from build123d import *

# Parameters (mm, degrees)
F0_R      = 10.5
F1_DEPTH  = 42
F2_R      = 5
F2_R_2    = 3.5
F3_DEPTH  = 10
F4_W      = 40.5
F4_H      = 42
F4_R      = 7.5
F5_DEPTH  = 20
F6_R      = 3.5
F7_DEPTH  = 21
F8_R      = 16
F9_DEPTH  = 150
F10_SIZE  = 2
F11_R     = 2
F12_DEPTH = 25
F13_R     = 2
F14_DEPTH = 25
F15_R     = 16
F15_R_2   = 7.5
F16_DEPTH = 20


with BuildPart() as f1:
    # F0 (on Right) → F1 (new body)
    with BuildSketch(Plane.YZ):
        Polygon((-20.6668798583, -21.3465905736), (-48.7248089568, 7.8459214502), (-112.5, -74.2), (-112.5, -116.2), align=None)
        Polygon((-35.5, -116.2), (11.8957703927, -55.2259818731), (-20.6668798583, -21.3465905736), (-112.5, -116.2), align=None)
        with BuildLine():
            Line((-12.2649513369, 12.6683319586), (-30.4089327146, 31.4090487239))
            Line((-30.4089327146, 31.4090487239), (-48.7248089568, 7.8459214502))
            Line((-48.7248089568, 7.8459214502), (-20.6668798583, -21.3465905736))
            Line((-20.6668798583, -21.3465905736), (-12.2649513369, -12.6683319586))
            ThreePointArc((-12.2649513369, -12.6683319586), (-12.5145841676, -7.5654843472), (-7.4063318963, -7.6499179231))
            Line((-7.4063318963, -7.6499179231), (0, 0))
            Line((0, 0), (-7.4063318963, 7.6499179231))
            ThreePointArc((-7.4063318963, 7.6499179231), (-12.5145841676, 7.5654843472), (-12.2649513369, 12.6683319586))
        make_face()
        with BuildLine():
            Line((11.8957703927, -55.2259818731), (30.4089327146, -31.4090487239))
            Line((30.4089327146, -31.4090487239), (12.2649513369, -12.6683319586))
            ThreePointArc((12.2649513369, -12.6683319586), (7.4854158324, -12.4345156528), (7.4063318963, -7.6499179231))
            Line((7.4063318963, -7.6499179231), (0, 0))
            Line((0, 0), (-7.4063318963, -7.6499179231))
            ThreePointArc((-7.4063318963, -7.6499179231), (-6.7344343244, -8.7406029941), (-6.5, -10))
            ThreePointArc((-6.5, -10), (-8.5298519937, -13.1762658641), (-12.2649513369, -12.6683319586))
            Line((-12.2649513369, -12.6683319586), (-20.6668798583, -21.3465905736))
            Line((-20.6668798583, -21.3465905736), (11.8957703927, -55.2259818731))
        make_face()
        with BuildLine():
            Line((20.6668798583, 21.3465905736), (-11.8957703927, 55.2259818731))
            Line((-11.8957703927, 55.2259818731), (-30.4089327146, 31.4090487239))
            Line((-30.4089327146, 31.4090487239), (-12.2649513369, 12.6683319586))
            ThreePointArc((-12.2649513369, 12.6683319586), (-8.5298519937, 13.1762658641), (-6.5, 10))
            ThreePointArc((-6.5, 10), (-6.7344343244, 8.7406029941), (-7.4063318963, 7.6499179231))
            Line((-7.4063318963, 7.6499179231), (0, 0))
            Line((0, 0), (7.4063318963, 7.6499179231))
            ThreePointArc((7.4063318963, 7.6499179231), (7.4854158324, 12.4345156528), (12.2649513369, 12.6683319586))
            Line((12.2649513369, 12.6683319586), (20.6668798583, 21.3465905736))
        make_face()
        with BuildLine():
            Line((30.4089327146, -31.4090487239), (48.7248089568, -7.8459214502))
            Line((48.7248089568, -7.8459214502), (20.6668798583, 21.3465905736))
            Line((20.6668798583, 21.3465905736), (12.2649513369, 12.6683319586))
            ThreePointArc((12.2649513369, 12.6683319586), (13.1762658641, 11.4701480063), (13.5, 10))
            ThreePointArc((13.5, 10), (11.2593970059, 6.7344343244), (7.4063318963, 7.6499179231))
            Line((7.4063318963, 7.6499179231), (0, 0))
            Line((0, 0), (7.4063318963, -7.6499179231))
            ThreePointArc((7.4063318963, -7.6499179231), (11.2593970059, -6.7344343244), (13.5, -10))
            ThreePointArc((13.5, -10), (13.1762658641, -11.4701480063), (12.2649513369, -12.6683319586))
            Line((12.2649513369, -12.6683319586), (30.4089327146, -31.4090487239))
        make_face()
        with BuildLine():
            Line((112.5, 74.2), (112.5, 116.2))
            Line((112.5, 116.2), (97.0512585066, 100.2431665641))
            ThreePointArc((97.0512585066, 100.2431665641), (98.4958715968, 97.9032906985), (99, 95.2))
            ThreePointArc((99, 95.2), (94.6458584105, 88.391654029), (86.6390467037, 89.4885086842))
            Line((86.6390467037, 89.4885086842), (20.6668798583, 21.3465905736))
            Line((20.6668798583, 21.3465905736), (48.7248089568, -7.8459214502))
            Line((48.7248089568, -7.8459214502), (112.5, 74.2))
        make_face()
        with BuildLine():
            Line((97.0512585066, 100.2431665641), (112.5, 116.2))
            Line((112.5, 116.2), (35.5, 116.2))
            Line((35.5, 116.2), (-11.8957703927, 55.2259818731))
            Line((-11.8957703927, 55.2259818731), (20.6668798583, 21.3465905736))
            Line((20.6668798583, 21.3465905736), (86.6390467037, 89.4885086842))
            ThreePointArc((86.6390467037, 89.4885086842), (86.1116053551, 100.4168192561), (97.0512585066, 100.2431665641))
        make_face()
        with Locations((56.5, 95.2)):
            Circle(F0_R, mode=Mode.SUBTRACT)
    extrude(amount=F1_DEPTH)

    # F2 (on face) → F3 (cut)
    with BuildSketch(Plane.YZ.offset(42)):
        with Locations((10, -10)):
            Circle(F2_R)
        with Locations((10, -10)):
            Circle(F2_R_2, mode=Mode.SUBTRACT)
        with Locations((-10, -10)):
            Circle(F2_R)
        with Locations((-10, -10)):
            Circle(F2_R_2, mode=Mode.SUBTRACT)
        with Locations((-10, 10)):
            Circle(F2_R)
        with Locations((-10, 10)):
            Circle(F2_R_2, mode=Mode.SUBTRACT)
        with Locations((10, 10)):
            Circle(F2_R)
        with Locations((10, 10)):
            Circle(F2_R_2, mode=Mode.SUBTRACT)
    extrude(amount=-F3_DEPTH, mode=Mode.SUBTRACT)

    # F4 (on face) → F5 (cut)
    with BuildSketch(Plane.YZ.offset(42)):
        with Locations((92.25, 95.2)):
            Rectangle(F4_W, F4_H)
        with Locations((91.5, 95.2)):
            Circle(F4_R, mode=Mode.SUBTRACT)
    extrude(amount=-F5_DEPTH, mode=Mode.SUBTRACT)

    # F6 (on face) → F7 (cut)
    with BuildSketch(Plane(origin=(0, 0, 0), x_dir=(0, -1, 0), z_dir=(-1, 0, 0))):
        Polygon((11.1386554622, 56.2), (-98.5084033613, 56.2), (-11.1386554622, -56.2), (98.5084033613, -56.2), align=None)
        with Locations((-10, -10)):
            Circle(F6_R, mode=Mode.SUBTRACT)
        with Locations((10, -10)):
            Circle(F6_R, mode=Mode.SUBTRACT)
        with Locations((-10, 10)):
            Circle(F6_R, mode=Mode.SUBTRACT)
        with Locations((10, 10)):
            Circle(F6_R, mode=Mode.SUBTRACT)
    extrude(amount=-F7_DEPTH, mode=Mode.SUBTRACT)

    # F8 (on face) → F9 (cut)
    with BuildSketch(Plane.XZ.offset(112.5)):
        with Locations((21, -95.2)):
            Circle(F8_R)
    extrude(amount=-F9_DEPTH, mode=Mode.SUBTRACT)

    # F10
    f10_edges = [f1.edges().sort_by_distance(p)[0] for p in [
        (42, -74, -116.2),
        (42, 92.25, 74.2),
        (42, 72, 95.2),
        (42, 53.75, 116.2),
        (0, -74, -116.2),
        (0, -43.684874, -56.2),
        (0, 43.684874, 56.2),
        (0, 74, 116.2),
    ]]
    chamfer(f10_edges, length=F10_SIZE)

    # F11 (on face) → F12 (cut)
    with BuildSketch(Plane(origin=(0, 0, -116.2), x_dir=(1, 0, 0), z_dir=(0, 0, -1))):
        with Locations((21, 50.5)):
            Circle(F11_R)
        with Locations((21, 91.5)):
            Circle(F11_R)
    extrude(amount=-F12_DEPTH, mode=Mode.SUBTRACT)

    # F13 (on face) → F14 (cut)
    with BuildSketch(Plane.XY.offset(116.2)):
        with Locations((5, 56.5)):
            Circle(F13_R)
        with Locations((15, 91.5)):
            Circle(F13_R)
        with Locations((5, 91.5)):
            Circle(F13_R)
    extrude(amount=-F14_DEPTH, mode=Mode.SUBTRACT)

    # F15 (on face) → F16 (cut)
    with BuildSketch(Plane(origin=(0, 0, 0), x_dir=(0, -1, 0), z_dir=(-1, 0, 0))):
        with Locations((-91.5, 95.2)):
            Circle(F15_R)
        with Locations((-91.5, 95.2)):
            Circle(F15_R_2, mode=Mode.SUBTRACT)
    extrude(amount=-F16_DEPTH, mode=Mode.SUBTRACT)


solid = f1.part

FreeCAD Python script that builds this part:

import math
import FreeCAD as App
import Part
import Sketcher


def edges_at(feature, points):
    """Names of the edges that pass closest to the given points."""
    edges = feature.Shape.Edges
    near = lambda p: min(range(len(edges)), key=lambda i: edges[i].distToShape(Part.Vertex(*p))[0])
    return sorted({f"Edge{near(p) + 1}" for p in points})

doc = App.newDocument("Part")
body = doc.addObject("PartDesign::Body", "Body")

# Sketch on YZ plane
sketch1 = body.newObject("Sketcher::SketchObject", "Sketch")
sketch1.AttachmentSupport = (doc.getObject("YZ_Plane"), [""])
sketch1.MapMode = "FlatFace"
sketch1.addGeometry([
    Part.LineSegment(App.Vector(-48.7, 7.8, 0), App.Vector(-112.5, -74.2, 0)),  # 0
    Part.LineSegment(App.Vector(-112.5, -74.2, 0), App.Vector(-112.5, -116.2, 0)),  # 1
    Part.LineSegment(App.Vector(-112.5, -116.2, 0), App.Vector(-35.5, -116.2, 0)),  # 2
    Part.LineSegment(App.Vector(-35.5, -116.2, 0), App.Vector(11.9, -55.2, 0)),  # 3
    Part.LineSegment(App.Vector(11.9, -55.2, 0), App.Vector(48.7, -7.8, 0)),  # 4
    Part.LineSegment(App.Vector(48.7, -7.8, 0), App.Vector(112.5, 74.2, 0)),  # 5
    Part.LineSegment(App.Vector(112.5, 74.2, 0), App.Vector(112.5, 116.2, 0)),  # 6
    Part.LineSegment(App.Vector(112.5, 116.2, 0), App.Vector(35.5, 116.2, 0)),  # 7
    Part.LineSegment(App.Vector(35.5, 116.2, 0), App.Vector(-11.9, 55.2, 0)),  # 8
    Part.LineSegment(App.Vector(-11.9, 55.2, 0), App.Vector(-48.7, 7.8, 0)),  # 9
    Part.ArcOfCircle(Part.Circle(App.Vector(-10, -10, 0), App.Vector(0, 0, 1), 3.5), math.radians(42), math.radians(230)),  # 10
    Part.ArcOfCircle(Part.Circle(App.Vector(-10, -10, 0), App.Vector(0, 0, 1), 3.5), math.radians(0), math.radians(42)),  # 11
    Part.ArcOfCircle(Part.Circle(App.Vector(-10, -10, 0), App.Vector(0, 0, 1), 3.5), math.radians(-130), math.radians(0)),  # 12
    Part.ArcOfCircle(Part.Circle(App.Vector(10, -10, 0), App.Vector(0, 0, 1), 3.5), math.radians(138), math.radians(310)),  # 13
    Part.ArcOfCircle(Part.Circle(App.Vector(10, -10, 0), App.Vector(0, 0, 1), 3.5), math.radians(0), math.radians(138)),  # 14
    Part.ArcOfCircle(Part.Circle(App.Vector(10, -10, 0), App.Vector(0, 0, 1), 3.5), math.radians(-50), math.radians(0)),  # 15
    Part.ArcOfCircle(Part.Circle(App.Vector(-10, 10, 0), App.Vector(0, 0, 1), 3.5), math.radians(130), math.radians(318)),  # 16
    Part.ArcOfCircle(Part.Circle(App.Vector(-10, 10, 0), App.Vector(0, 0, 1), 3.5), math.radians(0), math.radians(130)),  # 17
    Part.ArcOfCircle(Part.Circle(App.Vector(-10, 10, 0), App.Vector(0, 0, 1), 3.5), math.radians(-42), math.radians(0)),  # 18
    Part.ArcOfCircle(Part.Circle(App.Vector(10, 10, 0), App.Vector(0, 0, 1), 3.5), math.radians(50), math.radians(222)),  # 19
    Part.ArcOfCircle(Part.Circle(App.Vector(10, 10, 0), App.Vector(0, 0, 1), 3.5), math.radians(0), math.radians(50)),  # 20
    Part.ArcOfCircle(Part.Circle(App.Vector(10, 10, 0), App.Vector(0, 0, 1), 3.5), math.radians(-138), math.radians(0)),  # 21
    Part.Circle(App.Vector(56.5, 95.2, 0), App.Vector(0, 0, 1), 10.5),  # 22
    Part.ArcOfCircle(Part.Circle(App.Vector(91.5, 95.2, 0), App.Vector(0, 0, 1), 7.5), math.radians(0), math.radians(42)),  # 23
    Part.ArcOfCircle(Part.Circle(App.Vector(91.5, 95.2, 0), App.Vector(0, 0, 1), 7.5), math.radians(-130), math.radians(0)),  # 24
    Part.ArcOfCircle(Part.Circle(App.Vector(91.5, 95.2, 0), App.Vector(0, 0, 1), 7.5), math.radians(42), math.radians(230)),  # 25
], False)
sketch1.addConstraint([
    Sketcher.Constraint("Coincident", 0, 2, 1, 1),
    Sketcher.Constraint("Coincident", 1, 2, 2, 1),
    Sketcher.Constraint("Coincident", 2, 2, 3, 1),
    Sketcher.Constraint("Coincident", 3, 2, 4, 1),
    Sketcher.Constraint("Coincident", 4, 2, 5, 1),
    Sketcher.Constraint("Coincident", 5, 2, 6, 1),
    Sketcher.Constraint("Coincident", 6, 2, 7, 1),
    Sketcher.Constraint("Coincident", 7, 2, 8, 1),
    Sketcher.Constraint("Coincident", 8, 2, 9, 1),
    Sketcher.Constraint("Coincident", 9, 2, 0, 1),
    Sketcher.Constraint("Tangent", 10, 1, 11, 2),
    Sketcher.Constraint("Tangent", 11, 1, 12, 2),
    Sketcher.Constraint("Tangent", 12, 1, 10, 2),
    Sketcher.Constraint("Tangent", 13, 1, 14, 2),
    Sketcher.Constraint("Tangent", 14, 1, 15, 2),
    Sketcher.Constraint("Tangent", 15, 1, 13, 2),
    Sketcher.Constraint("Tangent", 16, 1, 17, 2),
    Sketcher.Constraint("Tangent", 17, 1, 18, 2),
    Sketcher.Constraint("Tangent", 18, 1, 16, 2),
    Sketcher.Constraint("Tangent", 19, 1, 20, 2),
    Sketcher.Constraint("Tangent", 20, 1, 21, 2),
    Sketcher.Constraint("Tangent", 21, 1, 19, 2),
    Sketcher.Constraint("Tangent", 23, 1, 24, 2),
    Sketcher.Constraint("Tangent", 24, 1, 25, 2),
    Sketcher.Constraint("Tangent", 25, 1, 23, 2),
    Sketcher.Constraint("Vertical", 1),
    Sketcher.Constraint("Horizontal", 2),
    Sketcher.Constraint("Vertical", 6),
    Sketcher.Constraint("Horizontal", 7),
    Sketcher.Constraint("Equal", 12, 13),
    Sketcher.Constraint("Equal", 15, 16),
    Sketcher.Constraint("Equal", 18, 19),
    Sketcher.Constraint("Symmetric", 13, 3, 16, 3, -1, 1),
    Sketcher.Constraint("Symmetric", 10, 3, 19, 3, -1, 1),
    Sketcher.Constraint("Symmetric", 0, 2, 5, 2, -1, 1),
    Sketcher.Constraint("Symmetric", 2, 2, 7, 2, -1, 1),
    Sketcher.Constraint("Symmetric", 3, 2, 8, 2, -1, 1),
    Sketcher.Constraint("Symmetric", 4, 2, 9, 2, -1, 1),
    Sketcher.Constraint("Symmetric", 10, 3, 13, 3, -2),
    Sketcher.Constraint("Parallel", 0, 3),
    Sketcher.Constraint("Parallel", 3, 4),
    Sketcher.Constraint("Horizontal", 22, 3, 23, 3),
    Sketcher.Constraint("Horizontal", 15, 3, 11, 1),
    Sketcher.Constraint("Horizontal", 10, 1, 13, 1),
    Sketcher.Constraint("Horizontal", 11, 1, 14, 1),
    Sketcher.Constraint("Horizontal", 12, 1, 15, 1),
    Sketcher.Constraint("Horizontal", 21, 3, 17, 1),
    Sketcher.Constraint("Horizontal", 16, 1, 19, 1),
    Sketcher.Constraint("Horizontal", 17, 1, 20, 1),
    Sketcher.Constraint("Horizontal", 18, 1, 21, 1),
    Sketcher.Constraint("Horizontal", 25, 3, 23, 1),
    Sketcher.Constraint("Vertical", 12, 1, 16, 1),
    Sketcher.Constraint("Vertical", 10, 1, 18, 1),
    Sketcher.Constraint("Diameter", 22, 21.0),
    Sketcher.Constraint("Radius", 10, 3.5),
    Sketcher.Constraint("Radius", 23, 7.5),
    Sketcher.Constraint("DistanceX", 2, 1, 2, 2, 77.0),
    Sketcher.Constraint("DistanceY", 1, 2, 1, 1, 42.0),
    Sketcher.Constraint("DistanceX", 10, 3, -1, 1, 10.0),
    Sketcher.Constraint("DistanceY", 10, 3, -1, 1, 10.0),
    Sketcher.Constraint("DistanceX", -1, 1, 23, 1, 99.0),
    Sketcher.Constraint("DistanceX", 22, 3, 23, 3, 35.0),
    Sketcher.Constraint("DistanceX", 24, 3, 5, 2, 21.0),
    Sketcher.Constraint("DistanceY", 5, 2, 24, 3, 21.0),
    Sketcher.Constraint("DistanceY", -1, 1, 22, 3, 95.2),
    Sketcher.Constraint("Distance", 4, 60.010401),
    Sketcher.Constraint("Distance", 3, 77.228168),
    Sketcher.Constraint("DistanceX", 10, 1, -1, 1, 7.406332),
    Sketcher.Constraint("DistanceX", 12, 1, -1, 1, 12.264951),
    Sketcher.Constraint("DistanceY", -1, 1, 24, 1, 89.488509),
    Sketcher.Constraint("DistanceX", -1, 1, 25, 1, 97.051259),
])
pad1 = body.newObject("PartDesign::Pad", "Pad")
pad1.Profile = sketch1
pad1.Length = 42

# Sketch on YZ plane
sketch2 = body.newObject("Sketcher::SketchObject", "Sketch001")
sketch2.AttachmentSupport = (doc.getObject("YZ_Plane"), [""])
sketch2.MapMode = "FlatFace"
sketch2.AttachmentOffset = App.Placement(App.Vector(0, 0, 42), App.Rotation())
sketch2.addGeometry([
    Part.Circle(App.Vector(10, -10, 0), App.Vector(0, 0, 1), 5),  # 0
    Part.Circle(App.Vector(10, -10, 0), App.Vector(0, 0, 1), 3.5),  # 1
    Part.Circle(App.Vector(-10, -10, 0), App.Vector(0, 0, 1), 5),  # 2
    Part.Circle(App.Vector(-10, -10, 0), App.Vector(0, 0, 1), 3.5),  # 3
    Part.Circle(App.Vector(-10, 10, 0), App.Vector(0, 0, 1), 5),  # 4
    Part.Circle(App.Vector(-10, 10, 0), App.Vector(0, 0, 1), 3.5),  # 5
    Part.Circle(App.Vector(10, 10, 0), App.Vector(0, 0, 1), 5),  # 6
    Part.Circle(App.Vector(10, 10, 0), App.Vector(0, 0, 1), 3.5),  # 7
], False)
sketch2.addConstraint([
    Sketcher.Constraint("Coincident", 1, 3, 0, 3),
    Sketcher.Constraint("Coincident", 3, 3, 2, 3),
    Sketcher.Constraint("Coincident", 5, 3, 4, 3),
    Sketcher.Constraint("Coincident", 7, 3, 6, 3),
    Sketcher.Constraint("Equal", 0, 2),
    Sketcher.Constraint("Equal", 1, 3),
    Sketcher.Constraint("Equal", 2, 4),
    Sketcher.Constraint("Equal", 3, 5),
    Sketcher.Constraint("Equal", 4, 6),
    Sketcher.Constraint("Equal", 5, 7),
    Sketcher.Constraint("Symmetric", 0, 3, 4, 3, -1, 1),
    Sketcher.Constraint("Symmetric", 2, 3, 6, 3, -1, 1),
    Sketcher.Constraint("Symmetric", 0, 3, 2, 3, -2),
    Sketcher.Constraint("Diameter", 0, 10.0),
    Sketcher.Constraint("Diameter", 1, 7.0),
    Sketcher.Constraint("DistanceX", -1, 1, 0, 3, 10.0),
    Sketcher.Constraint("DistanceY", 0, 3, -1, 1, 10.0),
])
pocket1 = body.newObject("PartDesign::Pocket", "Pocket")
pocket1.Profile = sketch2
pocket1.Length = 10

# Sketch on YZ plane
sketch3 = body.newObject("Sketcher::SketchObject", "Sketch002")
sketch3.AttachmentSupport = (doc.getObject("YZ_Plane"), [""])
sketch3.MapMode = "FlatFace"
sketch3.AttachmentOffset = App.Placement(App.Vector(0, 0, 42), App.Rotation())
sketch3.addGeometry([
    Part.LineSegment(App.Vector(72, 116, 0), App.Vector(72, 74, 0)),  # 0
    Part.LineSegment(App.Vector(72, 74, 0), App.Vector(112, 74, 0)),  # 1
    Part.LineSegment(App.Vector(112, 74, 0), App.Vector(112, 116, 0)),  # 2
    Part.LineSegment(App.Vector(112, 116, 0), App.Vector(72, 116, 0)),  # 3
    Part.Circle(App.Vector(92, 95, 0), App.Vector(0, 0, 1), 8),  # 4
], False)
sketch3.addConstraint([
    Sketcher.Constraint("Coincident", 0, 2, 1, 1),
    Sketcher.Constraint("Coincident", 1, 2, 2, 1),
    Sketcher.Constraint("Coincident", 2, 2, 3, 1),
    Sketcher.Constraint("Coincident", 3, 2, 0, 1),
    Sketcher.Constraint("Vertical", 0),
    Sketcher.Constraint("Horizontal", 1),
    Sketcher.Constraint("Vertical", 2),
    Sketcher.Constraint("Horizontal", 3),
    Sketcher.Constraint("Diameter", 4, 15.0),
    Sketcher.Constraint("DistanceY", 0, 2, 0, 1, 42.0),
    Sketcher.Constraint("DistanceX", 1, 1, 1, 2, 40.5),
    Sketcher.Constraint("DistanceX", -1, 1, 0, 2, 72.0),
    Sketcher.Constraint("DistanceY", 0, 2, 4, 3, 21.0),
    Sketcher.Constraint("DistanceX", 4, 3, 1, 2, 21.0),
    Sketcher.Constraint("DistanceY", -1, 1, 4, 3, 95.2),
])
pocket2 = body.newObject("PartDesign::Pocket", "Pocket001")
pocket2.Profile = sketch3
pocket2.Length = 20

# Sketch on YZ plane
sketch4 = body.newObject("Sketcher::SketchObject", "Sketch003")
sketch4.AttachmentSupport = (doc.getObject("YZ_Plane"), [""])
sketch4.MapMode = "FlatFace"
sketch4.addGeometry([
    Part.LineSegment(App.Vector(-11.1, 56.2, 0), App.Vector(98.5, 56.2, 0)),  # 0
    Part.LineSegment(App.Vector(98.5, 56.2, 0), App.Vector(11.1, -56.2, 0)),  # 1
    Part.LineSegment(App.Vector(11.1, -56.2, 0), App.Vector(-98.5, -56.2, 0)),  # 2
    Part.LineSegment(App.Vector(-98.5, -56.2, 0), App.Vector(-11.1, 56.2, 0)),  # 3
    Part.Circle(App.Vector(10, -10, 0), App.Vector(0, 0, 1), 3.5),  # 4
    Part.Circle(App.Vector(-10, -10, 0), App.Vector(0, 0, 1), 3.5),  # 5
    Part.Circle(App.Vector(10, 10, 0), App.Vector(0, 0, 1), 3.5),  # 6
    Part.Circle(App.Vector(-10, 10, 0), App.Vector(0, 0, 1), 3.5),  # 7
], False)
sketch4.addConstraint([
    Sketcher.Constraint("Coincident", 0, 2, 1, 1),
    Sketcher.Constraint("Coincident", 1, 2, 2, 1),
    Sketcher.Constraint("Coincident", 2, 2, 3, 1),
    Sketcher.Constraint("Coincident", 3, 2, 0, 1),
    Sketcher.Constraint("Horizontal", 0),
    Sketcher.Constraint("Horizontal", 2),
    Sketcher.Constraint("Equal", 4, 5),
    Sketcher.Constraint("Equal", 5, 6),
    Sketcher.Constraint("Equal", 6, 7),
    Sketcher.Constraint("Symmetric", 5, 3, 6, 3, -1, 1),
    Sketcher.Constraint("Symmetric", 4, 3, 7, 3, -1, 1),
    Sketcher.Constraint("Symmetric", 0, 2, 2, 2, -1, 1),
    Sketcher.Constraint("Symmetric", 4, 3, 5, 3, -2),
    Sketcher.Constraint("Parallel", 1, 3),
    Sketcher.Constraint("Diameter", 4, 7.0),
    Sketcher.Constraint("DistanceX", -1, 1, 4, 3, 10.0),
    Sketcher.Constraint("DistanceY", 4, 3, -1, 1, 10.0),
    Sketcher.Constraint("DistanceY", -1, 1, 0, 2, 56.2),
    Sketcher.Constraint("DistanceX", 0, 1, 0, 2, 109.647059),
    Sketcher.Constraint("Distance", 1, 142.363032),
])
pocket3 = body.newObject("PartDesign::Pocket", "Pocket002")
pocket3.Profile = sketch4
pocket3.Length = 21
pocket3.Reversed = True

# Sketch on XZ plane
sketch5 = body.newObject("Sketcher::SketchObject", "Sketch004")
sketch5.AttachmentSupport = (doc.getObject("XZ_Plane"), [""])
sketch5.MapMode = "FlatFace"
sketch5.AttachmentOffset = App.Placement(App.Vector(0, 0, 112.5), App.Rotation())
sketch5.addGeometry(Part.Circle(App.Vector(21, -95, 0), App.Vector(0, 0, 1), 16), False)
sketch5.addConstraint([
    Sketcher.Constraint("Diameter", 0, 32.0),
    Sketcher.Constraint("DistanceX", -1, 1, 0, 3, 21.0),
    Sketcher.Constraint("DistanceY", 0, 3, -1, 1, 95.2),
])
pocket4 = body.newObject("PartDesign::Pocket", "Pocket003")
pocket4.Profile = sketch5
pocket4.Length = 150
doc.recompute()

chamfer = body.newObject("PartDesign::Chamfer", "Chamfer")
chamfer.Base = (pocket4, edges_at(pocket4, [
    (42, -74, -116.2),
    (42, 92.25, 74.2),
    (42, 72, 95.2),
    (42, 53.75, 116.2),
    (0, -74, -116.2),
    (0, -43.685, -56.2),
    (0, 43.685, 56.2),
    (0, 74, 116.2),
]))
chamfer.Size = 2

# Sketch on XY plane
sketch6 = body.newObject("Sketcher::SketchObject", "Sketch005")
sketch6.AttachmentSupport = (doc.getObject("XY_Plane"), [""])
sketch6.MapMode = "FlatFace"
sketch6.AttachmentOffset = App.Placement(App.Vector(0, 0, -116.2), App.Rotation())
sketch6.addGeometry([
    Part.Circle(App.Vector(21, -50.5, 0), App.Vector(0, 0, 1), 2),
    Part.Circle(App.Vector(21, -91.5, 0), App.Vector(0, 0, 1), 2),
], False)
sketch6.addConstraint([
    Sketcher.Constraint("Equal", 0, 1),
    Sketcher.Constraint("Vertical", 0, 3, 1, 3),
    Sketcher.Constraint("Diameter", 0, 4.0),
    Sketcher.Constraint("DistanceX", -1, 1, 0, 3, 21.0),
    Sketcher.Constraint("DistanceY", 1, 3, 0, 3, 41.0),
    Sketcher.Constraint("DistanceY", 0, 3, -1, 1, 50.5),
])
pocket5 = body.newObject("PartDesign::Pocket", "Pocket004")
pocket5.Profile = sketch6
pocket5.Length = 25
pocket5.Reversed = True

# Sketch on XY plane
sketch7 = body.newObject("Sketcher::SketchObject", "Sketch006")
sketch7.AttachmentSupport = (doc.getObject("XY_Plane"), [""])
sketch7.MapMode = "FlatFace"
sketch7.AttachmentOffset = App.Placement(App.Vector(0, 0, 116.2), App.Rotation())
sketch7.addGeometry([
    Part.Circle(App.Vector(5, 56.5, 0), App.Vector(0, 0, 1), 2),
    Part.Circle(App.Vector(15, 91.5, 0), App.Vector(0, 0, 1), 2),
    Part.Circle(App.Vector(5, 91.5, 0), App.Vector(0, 0, 1), 2),
], False)
sketch7.addConstraint([
    Sketcher.Constraint("Equal", 0, 1),
    Sketcher.Constraint("Equal", 1, 2),
    Sketcher.Constraint("Horizontal", 1, 3, 2, 3),
    Sketcher.Constraint("Vertical", 0, 3, 2, 3),
    Sketcher.Constraint("Diameter", 0, 4.0),
    Sketcher.Constraint("DistanceX", -1, 1, 0, 3, 5.0),
    Sketcher.Constraint("DistanceX", -1, 1, 1, 3, 15.0),
    Sketcher.Constraint("DistanceY", 0, 3, 1, 3, 35.0),
    Sketcher.Constraint("DistanceY", -1, 1, 0, 3, 56.5),
])
pocket6 = body.newObject("PartDesign::Pocket", "Pocket005")
pocket6.Profile = sketch7
pocket6.Length = 25

# Sketch on YZ plane
sketch8 = body.newObject("Sketcher::SketchObject", "Sketch007")
sketch8.AttachmentSupport = (doc.getObject("YZ_Plane"), [""])
sketch8.MapMode = "FlatFace"
sketch8.addGeometry([
    Part.Circle(App.Vector(92, 95, 0), App.Vector(0, 0, 1), 16),
    Part.Circle(App.Vector(92, 95, 0), App.Vector(0, 0, 1), 8),
], False)
sketch8.addConstraint([
    Sketcher.Constraint("Coincident", 1, 3, 0, 3),
    Sketcher.Constraint("Diameter", 0, 32.0),
    Sketcher.Constraint("Diameter", 1, 15.0),
    Sketcher.Constraint("DistanceX", -1, 1, 0, 3, 91.5),
    Sketcher.Constraint("DistanceY", -1, 1, 0, 3, 95.2),
])
pocket7 = body.newObject("PartDesign::Pocket", "Pocket006")
pocket7.Profile = sketch8
pocket7.Length = 20
pocket7.Reversed = True

doc.recompute()
